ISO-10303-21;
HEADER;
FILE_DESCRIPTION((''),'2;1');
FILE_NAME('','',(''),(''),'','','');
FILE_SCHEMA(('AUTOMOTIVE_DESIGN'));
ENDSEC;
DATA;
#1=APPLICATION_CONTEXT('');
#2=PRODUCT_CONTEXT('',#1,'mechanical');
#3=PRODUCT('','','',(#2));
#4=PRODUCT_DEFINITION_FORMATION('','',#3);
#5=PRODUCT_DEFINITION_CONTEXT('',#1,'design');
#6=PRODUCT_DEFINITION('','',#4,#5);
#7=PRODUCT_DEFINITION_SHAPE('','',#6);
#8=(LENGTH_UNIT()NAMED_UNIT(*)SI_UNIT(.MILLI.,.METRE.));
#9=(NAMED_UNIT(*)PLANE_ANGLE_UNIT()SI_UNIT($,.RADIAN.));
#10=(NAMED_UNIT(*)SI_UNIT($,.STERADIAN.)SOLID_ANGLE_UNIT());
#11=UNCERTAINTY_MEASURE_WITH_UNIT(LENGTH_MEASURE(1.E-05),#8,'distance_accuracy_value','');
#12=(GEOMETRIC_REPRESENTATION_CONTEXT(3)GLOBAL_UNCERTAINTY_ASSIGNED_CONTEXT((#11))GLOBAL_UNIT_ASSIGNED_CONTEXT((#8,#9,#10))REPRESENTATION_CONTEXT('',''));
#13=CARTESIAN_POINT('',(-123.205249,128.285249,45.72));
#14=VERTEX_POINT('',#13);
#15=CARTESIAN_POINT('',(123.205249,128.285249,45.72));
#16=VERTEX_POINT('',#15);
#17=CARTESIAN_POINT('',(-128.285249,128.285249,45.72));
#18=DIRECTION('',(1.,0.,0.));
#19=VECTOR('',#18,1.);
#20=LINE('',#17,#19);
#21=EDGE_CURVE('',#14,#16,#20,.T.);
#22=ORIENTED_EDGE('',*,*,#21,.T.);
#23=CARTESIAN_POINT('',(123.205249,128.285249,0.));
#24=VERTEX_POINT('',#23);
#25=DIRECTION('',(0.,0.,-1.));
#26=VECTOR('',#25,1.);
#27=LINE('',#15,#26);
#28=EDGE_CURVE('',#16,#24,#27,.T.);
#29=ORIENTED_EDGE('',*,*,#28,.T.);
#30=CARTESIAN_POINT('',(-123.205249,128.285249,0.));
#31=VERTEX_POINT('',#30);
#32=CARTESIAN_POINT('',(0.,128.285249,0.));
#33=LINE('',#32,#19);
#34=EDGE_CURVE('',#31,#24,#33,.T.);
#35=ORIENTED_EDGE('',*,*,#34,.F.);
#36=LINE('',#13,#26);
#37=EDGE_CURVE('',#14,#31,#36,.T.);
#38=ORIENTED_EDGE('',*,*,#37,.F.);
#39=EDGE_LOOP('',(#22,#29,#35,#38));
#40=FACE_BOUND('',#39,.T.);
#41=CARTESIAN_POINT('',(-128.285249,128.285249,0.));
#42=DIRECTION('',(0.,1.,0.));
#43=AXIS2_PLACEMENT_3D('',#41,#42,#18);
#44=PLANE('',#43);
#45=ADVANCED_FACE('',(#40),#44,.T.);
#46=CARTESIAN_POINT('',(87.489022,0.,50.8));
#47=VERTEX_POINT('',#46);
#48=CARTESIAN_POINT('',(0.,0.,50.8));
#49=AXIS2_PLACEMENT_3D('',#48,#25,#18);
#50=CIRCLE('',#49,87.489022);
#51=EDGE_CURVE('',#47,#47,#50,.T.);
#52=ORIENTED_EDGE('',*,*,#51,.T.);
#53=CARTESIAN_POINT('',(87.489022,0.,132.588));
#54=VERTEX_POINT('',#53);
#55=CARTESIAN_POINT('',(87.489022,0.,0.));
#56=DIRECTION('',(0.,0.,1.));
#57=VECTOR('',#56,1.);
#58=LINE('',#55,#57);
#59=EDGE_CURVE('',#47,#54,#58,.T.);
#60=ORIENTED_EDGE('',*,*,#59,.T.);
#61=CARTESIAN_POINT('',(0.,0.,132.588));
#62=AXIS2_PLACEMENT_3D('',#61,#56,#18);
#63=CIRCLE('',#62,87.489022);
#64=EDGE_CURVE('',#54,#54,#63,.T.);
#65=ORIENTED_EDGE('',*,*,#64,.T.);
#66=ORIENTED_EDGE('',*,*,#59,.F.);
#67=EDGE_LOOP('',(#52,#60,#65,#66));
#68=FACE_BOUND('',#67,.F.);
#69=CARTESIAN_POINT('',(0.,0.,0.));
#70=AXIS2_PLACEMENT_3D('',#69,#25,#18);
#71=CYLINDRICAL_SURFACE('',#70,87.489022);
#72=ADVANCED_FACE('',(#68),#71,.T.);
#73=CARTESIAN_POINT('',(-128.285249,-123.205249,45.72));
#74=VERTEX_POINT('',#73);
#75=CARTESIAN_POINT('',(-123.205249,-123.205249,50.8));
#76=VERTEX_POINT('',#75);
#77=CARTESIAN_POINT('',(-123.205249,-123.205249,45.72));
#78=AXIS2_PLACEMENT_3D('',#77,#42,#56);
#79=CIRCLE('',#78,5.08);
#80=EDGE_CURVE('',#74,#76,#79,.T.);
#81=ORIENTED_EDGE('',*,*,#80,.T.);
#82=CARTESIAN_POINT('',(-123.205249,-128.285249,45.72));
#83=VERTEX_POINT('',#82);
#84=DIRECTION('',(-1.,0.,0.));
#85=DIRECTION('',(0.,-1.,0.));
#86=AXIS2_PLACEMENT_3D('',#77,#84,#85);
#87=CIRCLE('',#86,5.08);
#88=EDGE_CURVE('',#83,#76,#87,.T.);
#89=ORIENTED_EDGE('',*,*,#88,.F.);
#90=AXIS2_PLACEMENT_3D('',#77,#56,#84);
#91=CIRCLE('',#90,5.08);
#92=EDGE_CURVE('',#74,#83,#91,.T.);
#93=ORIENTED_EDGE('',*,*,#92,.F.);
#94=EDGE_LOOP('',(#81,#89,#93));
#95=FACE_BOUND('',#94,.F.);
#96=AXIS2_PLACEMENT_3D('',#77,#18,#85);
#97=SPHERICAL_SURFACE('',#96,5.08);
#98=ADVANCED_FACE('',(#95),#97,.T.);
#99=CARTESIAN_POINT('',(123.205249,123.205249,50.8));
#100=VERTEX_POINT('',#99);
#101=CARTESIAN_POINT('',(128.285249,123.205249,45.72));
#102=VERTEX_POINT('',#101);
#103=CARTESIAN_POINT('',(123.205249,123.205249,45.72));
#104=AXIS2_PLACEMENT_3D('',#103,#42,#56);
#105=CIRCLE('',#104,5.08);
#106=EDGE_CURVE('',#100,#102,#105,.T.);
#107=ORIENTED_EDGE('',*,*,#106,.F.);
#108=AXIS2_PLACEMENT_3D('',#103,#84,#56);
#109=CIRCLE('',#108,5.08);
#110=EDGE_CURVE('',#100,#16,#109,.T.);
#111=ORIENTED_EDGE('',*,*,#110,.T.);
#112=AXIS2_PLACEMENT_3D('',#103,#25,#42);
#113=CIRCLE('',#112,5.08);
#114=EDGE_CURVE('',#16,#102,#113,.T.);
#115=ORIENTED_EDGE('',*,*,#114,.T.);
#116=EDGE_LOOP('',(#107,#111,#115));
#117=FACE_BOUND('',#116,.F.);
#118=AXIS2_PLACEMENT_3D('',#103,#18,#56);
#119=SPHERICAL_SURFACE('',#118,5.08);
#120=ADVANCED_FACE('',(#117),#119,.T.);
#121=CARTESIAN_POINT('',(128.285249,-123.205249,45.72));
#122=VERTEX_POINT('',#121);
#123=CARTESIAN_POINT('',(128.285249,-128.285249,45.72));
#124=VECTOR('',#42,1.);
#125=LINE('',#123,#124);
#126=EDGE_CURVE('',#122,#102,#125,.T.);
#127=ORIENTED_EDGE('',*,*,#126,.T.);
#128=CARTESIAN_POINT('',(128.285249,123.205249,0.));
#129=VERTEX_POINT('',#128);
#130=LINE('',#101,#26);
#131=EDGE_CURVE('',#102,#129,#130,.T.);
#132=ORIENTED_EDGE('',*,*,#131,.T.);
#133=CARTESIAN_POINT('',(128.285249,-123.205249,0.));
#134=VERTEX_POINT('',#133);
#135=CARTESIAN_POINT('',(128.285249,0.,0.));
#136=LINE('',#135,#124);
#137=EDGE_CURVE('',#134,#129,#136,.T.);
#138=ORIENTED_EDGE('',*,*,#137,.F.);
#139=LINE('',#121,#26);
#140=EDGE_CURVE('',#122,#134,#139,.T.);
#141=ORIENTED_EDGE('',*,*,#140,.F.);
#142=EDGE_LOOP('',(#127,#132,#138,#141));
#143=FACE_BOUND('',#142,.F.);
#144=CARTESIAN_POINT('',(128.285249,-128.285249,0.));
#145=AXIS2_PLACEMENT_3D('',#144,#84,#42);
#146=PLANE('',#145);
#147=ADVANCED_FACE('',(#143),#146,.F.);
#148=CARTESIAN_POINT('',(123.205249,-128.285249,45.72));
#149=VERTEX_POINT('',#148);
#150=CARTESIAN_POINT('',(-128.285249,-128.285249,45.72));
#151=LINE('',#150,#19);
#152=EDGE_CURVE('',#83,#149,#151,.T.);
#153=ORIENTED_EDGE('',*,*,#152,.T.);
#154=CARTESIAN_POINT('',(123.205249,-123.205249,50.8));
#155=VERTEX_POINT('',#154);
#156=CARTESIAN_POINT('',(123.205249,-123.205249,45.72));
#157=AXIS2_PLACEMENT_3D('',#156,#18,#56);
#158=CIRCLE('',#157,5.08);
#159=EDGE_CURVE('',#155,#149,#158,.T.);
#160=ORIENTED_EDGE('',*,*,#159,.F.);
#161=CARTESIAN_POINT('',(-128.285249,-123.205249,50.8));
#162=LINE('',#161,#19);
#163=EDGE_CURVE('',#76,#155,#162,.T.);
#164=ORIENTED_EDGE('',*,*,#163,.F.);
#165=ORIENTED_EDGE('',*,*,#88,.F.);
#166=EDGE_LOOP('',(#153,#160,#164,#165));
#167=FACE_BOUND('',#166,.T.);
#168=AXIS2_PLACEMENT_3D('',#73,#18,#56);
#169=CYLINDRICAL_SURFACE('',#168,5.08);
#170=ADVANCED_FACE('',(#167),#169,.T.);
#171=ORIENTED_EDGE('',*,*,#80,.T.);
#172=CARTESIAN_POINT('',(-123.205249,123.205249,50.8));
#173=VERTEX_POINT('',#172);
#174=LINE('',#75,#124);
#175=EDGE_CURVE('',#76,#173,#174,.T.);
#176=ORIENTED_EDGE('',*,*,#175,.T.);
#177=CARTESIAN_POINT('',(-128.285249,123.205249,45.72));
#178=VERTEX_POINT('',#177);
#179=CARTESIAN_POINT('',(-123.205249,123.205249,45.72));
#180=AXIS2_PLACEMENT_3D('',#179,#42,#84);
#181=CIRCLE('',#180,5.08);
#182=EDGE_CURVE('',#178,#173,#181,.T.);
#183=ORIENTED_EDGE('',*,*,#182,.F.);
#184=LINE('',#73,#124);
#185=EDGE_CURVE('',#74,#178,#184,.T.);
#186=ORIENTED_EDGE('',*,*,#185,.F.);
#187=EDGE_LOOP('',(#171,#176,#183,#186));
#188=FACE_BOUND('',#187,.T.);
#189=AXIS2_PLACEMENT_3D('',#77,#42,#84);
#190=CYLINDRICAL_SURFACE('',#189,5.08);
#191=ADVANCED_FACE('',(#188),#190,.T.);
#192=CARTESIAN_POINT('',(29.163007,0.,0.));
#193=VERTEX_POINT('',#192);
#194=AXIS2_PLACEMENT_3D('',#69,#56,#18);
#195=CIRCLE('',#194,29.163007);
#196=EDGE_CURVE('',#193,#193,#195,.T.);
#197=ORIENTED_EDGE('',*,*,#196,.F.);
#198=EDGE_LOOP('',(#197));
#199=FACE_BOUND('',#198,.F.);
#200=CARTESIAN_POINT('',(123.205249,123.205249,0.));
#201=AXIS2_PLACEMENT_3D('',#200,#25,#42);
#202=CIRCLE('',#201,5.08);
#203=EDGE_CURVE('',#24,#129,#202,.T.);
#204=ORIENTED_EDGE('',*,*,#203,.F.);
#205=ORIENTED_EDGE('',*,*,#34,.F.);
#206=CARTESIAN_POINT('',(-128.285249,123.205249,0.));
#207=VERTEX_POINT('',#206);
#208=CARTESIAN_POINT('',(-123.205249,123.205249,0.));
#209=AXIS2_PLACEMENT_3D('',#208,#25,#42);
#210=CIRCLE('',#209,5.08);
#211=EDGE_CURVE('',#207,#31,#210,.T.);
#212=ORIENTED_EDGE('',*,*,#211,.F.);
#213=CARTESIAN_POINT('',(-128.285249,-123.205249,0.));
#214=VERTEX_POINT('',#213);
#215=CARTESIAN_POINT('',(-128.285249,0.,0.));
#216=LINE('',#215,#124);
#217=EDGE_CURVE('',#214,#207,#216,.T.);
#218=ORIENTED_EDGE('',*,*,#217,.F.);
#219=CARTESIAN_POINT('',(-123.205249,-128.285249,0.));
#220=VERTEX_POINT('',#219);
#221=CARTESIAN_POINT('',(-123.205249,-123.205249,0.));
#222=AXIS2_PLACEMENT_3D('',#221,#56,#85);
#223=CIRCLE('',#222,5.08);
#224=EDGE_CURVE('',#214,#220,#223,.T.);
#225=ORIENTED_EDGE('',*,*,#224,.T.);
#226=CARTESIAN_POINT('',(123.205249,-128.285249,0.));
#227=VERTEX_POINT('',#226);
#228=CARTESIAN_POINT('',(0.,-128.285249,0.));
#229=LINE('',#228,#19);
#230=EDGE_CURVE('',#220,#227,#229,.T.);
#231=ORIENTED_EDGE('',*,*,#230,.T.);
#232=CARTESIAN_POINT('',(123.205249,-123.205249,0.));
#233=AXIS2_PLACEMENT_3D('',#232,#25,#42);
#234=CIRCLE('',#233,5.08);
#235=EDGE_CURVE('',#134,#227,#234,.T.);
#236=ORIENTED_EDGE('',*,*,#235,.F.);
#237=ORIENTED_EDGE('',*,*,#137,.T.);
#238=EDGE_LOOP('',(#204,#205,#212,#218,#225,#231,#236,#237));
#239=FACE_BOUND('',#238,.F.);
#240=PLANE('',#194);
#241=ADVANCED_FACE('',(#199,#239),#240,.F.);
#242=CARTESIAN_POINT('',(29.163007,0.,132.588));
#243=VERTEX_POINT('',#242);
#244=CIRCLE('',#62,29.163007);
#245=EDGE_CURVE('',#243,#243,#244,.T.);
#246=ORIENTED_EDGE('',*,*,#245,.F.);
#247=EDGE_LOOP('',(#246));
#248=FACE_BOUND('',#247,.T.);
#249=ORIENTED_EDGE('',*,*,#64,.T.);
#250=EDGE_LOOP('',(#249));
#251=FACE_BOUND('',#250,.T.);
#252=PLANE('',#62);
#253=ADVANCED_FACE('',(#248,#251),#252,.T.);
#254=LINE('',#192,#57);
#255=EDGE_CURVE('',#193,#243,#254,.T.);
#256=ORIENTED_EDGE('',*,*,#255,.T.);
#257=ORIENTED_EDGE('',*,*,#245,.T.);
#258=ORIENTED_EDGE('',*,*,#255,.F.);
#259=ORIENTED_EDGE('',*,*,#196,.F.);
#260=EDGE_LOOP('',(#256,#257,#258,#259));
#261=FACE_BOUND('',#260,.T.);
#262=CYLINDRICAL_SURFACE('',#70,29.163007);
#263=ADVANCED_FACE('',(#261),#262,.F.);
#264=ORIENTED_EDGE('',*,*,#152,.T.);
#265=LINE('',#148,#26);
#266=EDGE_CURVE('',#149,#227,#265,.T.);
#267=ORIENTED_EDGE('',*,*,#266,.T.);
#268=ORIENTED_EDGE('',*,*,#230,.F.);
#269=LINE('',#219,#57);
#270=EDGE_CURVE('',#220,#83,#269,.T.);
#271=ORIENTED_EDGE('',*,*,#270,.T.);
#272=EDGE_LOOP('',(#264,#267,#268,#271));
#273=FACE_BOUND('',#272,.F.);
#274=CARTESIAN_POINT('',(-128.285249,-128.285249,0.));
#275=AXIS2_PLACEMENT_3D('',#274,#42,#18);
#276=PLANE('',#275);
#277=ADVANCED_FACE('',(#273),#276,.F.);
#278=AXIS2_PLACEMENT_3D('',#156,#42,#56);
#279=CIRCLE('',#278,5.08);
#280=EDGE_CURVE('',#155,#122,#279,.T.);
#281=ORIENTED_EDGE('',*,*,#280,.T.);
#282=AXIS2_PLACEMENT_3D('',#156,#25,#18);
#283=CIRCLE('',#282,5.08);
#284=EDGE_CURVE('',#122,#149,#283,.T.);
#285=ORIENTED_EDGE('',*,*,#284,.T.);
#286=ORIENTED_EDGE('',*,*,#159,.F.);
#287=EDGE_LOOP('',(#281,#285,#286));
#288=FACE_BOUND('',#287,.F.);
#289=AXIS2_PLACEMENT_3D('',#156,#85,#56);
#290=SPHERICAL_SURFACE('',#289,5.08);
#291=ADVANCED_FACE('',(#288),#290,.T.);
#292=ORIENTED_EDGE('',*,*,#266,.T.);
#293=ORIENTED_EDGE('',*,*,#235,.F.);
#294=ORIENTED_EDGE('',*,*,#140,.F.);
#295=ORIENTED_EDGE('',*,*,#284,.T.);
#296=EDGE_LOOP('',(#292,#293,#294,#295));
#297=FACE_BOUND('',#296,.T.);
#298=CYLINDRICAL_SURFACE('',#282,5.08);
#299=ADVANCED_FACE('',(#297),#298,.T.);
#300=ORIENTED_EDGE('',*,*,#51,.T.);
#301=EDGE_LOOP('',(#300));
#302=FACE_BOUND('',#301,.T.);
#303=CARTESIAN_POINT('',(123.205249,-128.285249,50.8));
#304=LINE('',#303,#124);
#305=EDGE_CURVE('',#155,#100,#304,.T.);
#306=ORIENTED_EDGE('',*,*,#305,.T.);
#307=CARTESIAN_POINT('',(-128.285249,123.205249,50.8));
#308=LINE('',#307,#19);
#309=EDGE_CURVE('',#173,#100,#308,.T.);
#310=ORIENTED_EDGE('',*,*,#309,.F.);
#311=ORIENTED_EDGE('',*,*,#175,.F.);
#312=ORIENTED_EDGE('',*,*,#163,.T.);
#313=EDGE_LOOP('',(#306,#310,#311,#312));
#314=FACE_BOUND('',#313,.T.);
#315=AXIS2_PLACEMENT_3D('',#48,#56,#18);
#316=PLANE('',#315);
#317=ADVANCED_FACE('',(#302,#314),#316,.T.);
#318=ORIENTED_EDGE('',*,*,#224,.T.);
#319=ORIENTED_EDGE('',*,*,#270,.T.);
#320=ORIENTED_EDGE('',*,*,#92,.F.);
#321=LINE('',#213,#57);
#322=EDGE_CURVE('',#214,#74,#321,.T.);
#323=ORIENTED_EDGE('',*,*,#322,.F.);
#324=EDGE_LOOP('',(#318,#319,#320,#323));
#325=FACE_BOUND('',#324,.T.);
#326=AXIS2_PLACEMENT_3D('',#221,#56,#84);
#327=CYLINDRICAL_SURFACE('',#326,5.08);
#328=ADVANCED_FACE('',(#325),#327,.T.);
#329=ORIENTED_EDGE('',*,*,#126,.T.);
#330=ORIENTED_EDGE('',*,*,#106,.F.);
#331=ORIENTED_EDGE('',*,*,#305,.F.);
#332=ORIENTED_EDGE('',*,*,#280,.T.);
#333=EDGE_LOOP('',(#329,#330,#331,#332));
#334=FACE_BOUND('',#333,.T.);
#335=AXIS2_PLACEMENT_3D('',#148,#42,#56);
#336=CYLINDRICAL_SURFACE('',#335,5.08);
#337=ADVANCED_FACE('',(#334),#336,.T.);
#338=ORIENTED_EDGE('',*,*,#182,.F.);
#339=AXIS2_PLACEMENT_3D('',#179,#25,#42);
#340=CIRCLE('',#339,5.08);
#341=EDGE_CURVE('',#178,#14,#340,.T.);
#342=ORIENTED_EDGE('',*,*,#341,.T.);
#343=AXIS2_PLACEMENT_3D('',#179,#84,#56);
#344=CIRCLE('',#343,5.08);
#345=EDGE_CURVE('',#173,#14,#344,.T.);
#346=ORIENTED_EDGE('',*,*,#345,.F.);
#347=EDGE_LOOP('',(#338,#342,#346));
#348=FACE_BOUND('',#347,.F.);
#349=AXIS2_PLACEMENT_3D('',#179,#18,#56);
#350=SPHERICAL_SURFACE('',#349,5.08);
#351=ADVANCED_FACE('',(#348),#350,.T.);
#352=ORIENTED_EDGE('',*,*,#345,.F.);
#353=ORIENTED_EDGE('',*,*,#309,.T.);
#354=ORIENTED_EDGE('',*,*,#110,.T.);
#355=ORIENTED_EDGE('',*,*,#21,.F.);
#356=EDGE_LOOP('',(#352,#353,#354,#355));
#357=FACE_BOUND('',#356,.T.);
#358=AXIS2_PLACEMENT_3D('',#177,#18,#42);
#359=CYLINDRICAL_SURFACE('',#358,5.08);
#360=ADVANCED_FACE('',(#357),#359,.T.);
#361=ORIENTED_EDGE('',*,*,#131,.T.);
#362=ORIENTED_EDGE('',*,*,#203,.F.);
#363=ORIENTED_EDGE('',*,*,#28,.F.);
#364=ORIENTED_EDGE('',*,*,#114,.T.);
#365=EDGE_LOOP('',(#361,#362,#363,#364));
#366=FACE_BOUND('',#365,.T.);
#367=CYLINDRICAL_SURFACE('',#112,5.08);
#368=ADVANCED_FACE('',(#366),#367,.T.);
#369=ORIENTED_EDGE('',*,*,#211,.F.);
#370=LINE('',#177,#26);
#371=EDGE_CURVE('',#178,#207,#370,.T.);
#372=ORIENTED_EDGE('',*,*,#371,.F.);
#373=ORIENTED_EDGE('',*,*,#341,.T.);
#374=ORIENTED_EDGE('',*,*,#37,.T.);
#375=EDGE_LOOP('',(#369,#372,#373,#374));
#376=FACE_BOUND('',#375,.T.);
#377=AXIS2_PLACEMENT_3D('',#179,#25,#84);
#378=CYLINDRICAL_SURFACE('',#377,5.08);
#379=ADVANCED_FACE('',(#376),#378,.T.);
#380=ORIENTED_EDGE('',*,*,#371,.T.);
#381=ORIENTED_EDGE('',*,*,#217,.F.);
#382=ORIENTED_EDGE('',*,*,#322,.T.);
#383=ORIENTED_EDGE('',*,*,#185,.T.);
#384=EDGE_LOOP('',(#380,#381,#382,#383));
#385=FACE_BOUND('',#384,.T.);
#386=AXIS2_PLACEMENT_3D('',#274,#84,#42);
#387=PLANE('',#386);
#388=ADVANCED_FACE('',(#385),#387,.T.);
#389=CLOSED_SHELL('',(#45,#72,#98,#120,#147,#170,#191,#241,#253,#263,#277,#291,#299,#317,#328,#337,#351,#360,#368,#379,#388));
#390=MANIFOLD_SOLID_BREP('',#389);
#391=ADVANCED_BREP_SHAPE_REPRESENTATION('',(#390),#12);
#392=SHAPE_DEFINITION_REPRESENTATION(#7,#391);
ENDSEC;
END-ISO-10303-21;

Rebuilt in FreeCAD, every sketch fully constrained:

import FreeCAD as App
import Part
import Sketcher
from FreeCAD import Vector
Q = App.Units.Quantity


def edges_at(feature, points):
    """Names of the edges that pass closest to the given points."""
    edges = feature.Shape.Edges
    near = lambda p: min(range(len(edges)), key=lambda i: edges[i].distToShape(Part.Vertex(*p))[0])
    return sorted({f"Edge{near(p) + 1}" for p in points})

doc = App.newDocument("Part")
body = doc.addObject("PartDesign::Body", "Body")

# Sketch on XY plane
sketch1 = doc.addObject("Sketcher::SketchObject", "Sketch")
body.addObject(sketch1)
sketch1.AttachmentSupport = (doc.XY_Plane, [""])
sketch1.MapMode = "FlatFace"
sketch1.addGeometry([
    Part.LineSegment(Vector(-128.285249, 128.285249, 0), Vector(-128.285249, -128.285249, 0)),  # 0
    Part.LineSegment(Vector(-128.285249, -128.285249, 0), Vector(128.285249, -128.285249, 0)),  # 1
    Part.LineSegment(Vector(128.285249, -128.285249, 0), Vector(128.285249, 128.285249, 0)),  # 2
    Part.LineSegment(Vector(128.285249, 128.285249, 0), Vector(-128.285249, 128.285249, 0)),  # 3
    Part.Circle(Vector(0, 0, 0), Vector(0, 0, 1), 29.163007),  # 4
], False)
sketch1.addConstraint([
    Sketcher.Constraint("Coincident", 0, 2, 1, 1),
    Sketcher.Constraint("Coincident", 1, 2, 2, 1),
    Sketcher.Constraint("Coincident", 2, 2, 3, 1),
    Sketcher.Constraint("Coincident", 3, 2, 0, 1),
    Sketcher.Constraint("Vertical", 0),
    Sketcher.Constraint("Horizontal", 1),
    Sketcher.Constraint("Vertical", 2),
    Sketcher.Constraint("Horizontal", 3),
    Sketcher.Constraint("Coincident", 4, 3, -1, 1),
    Sketcher.Constraint("Symmetric", 0, 2, 2, 2, -1, 1),
    Sketcher.Constraint("Equal", 3, 0),
    Sketcher.Constraint("Diameter", 4, 58.326014),
    Sketcher.Constraint("DistanceX", 1, 1, 1, 2, 256.570498),
])
pad1 = doc.addObject("PartDesign::Pad", "Pad")
body.addObject(pad1)
pad1.Profile = sketch1
pad1.Length = Q("2 in")
doc.recompute()

fillet = doc.addObject("PartDesign::Fillet", "Fillet")
body.addObject(fillet)
fillet.Base = (pad1, edges_at(pad1, [(0, 128.285, 50.8)]))
fillet.Radius = Q("0.2 in")
doc.recompute()

fillet2 = doc.addObject("PartDesign::Fillet", "Fillet001")
body.addObject(fillet2)
fillet2.Base = (fillet, edges_at(fillet, [(128.285, -2.54, 50.8)]))
fillet2.Radius = Q("0.2 in")
doc.recompute()

fillet3 = doc.addObject("PartDesign::Fillet", "Fillet002")
body.addObject(fillet3)
fillet3.Base = (fillet2, edges_at(fillet2, [(-2.54, -128.285, 50.8)]))
fillet3.Radius = Q("0.2 in")
doc.recompute()

fillet4 = doc.addObject("PartDesign::Fillet", "Fillet003")
body.addObject(fillet4)
fillet4.Base = (fillet3, edges_at(fillet3, [(-128.285, 0, 50.8)]))
fillet4.Radius = Q("0.2 in")

# Sketch on XY plane
sketch2 = doc.addObject("Sketcher::SketchObject", "Sketch001")
body.addObject(sketch2)
sketch2.AttachmentSupport = (doc.XY_Plane, [""])
sketch2.MapMode = "FlatFace"
sketch2.addGeometry([
    Part.Circle(Vector(0, 0, 0), Vector(0, 0, 1), 87.489022),
    Part.Circle(Vector(0, 0, 0), Vector(0, 0, 1), 29.163007),
], False)
sketch2.addConstraint([
    Sketcher.Constraint("Coincident", 0, 3, -1, 1),
    Sketcher.Constraint("Coincident", 1, 3, -1, 1),
    Sketcher.Constraint("Diameter", 0, 174.978044),
    Sketcher.Constraint("Diameter", 1, 58.326014),
])
pad2 = doc.addObject("PartDesign::Pad", "Pad001")
body.addObject(pad2)
pad2.Profile = sketch2
pad2.Length = Q("5.22 in")

doc.recompute()
